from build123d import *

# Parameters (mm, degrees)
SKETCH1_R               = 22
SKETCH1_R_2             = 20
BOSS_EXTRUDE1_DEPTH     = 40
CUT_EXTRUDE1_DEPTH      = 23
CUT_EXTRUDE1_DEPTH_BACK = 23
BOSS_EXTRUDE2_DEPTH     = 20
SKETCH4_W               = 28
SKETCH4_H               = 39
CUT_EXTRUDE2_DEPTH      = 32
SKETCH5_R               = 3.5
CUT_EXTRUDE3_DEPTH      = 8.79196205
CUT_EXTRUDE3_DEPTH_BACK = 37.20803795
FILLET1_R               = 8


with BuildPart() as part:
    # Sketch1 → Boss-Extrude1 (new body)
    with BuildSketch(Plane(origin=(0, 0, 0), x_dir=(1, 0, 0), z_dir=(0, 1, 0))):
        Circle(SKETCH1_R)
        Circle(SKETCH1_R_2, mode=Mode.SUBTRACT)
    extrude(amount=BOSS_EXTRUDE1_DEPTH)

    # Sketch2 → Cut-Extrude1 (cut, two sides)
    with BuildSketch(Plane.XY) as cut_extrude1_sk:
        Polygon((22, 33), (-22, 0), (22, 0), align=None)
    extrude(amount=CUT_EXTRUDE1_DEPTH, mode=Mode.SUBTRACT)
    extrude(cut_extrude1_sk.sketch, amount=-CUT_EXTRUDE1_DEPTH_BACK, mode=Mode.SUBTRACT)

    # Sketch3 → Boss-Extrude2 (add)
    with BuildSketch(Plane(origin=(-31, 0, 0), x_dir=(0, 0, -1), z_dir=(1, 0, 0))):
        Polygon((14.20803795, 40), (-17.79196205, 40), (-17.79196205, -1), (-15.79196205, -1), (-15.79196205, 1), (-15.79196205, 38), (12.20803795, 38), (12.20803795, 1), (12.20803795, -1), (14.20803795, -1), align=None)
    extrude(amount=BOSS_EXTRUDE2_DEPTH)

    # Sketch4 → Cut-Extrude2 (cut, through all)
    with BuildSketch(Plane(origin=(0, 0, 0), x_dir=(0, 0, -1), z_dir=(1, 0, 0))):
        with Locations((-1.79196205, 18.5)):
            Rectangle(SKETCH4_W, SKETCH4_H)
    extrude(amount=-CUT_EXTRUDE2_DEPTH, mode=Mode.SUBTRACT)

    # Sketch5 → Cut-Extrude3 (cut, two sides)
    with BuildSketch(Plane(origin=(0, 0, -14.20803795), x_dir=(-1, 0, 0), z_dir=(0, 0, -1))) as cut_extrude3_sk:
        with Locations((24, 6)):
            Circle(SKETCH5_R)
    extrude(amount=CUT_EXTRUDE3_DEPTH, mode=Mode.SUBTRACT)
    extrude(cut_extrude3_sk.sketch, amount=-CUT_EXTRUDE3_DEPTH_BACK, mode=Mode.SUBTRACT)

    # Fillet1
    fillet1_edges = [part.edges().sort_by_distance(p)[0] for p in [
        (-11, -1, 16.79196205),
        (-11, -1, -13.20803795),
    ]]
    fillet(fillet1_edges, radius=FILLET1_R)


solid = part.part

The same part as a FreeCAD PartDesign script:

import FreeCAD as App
import Part
import Sketcher
from FreeCAD import Vector


def edges_at(feature, points):
    """Names of the edges that pass closest to the given points."""
    edges = feature.Shape.Edges
    near = lambda p: min(range(len(edges)), key=lambda i: edges[i].distToShape(Part.Vertex(*p))[0])
    return sorted({f"Edge{near(p) + 1}" for p in points})


def add_polygon(sketch, points):
    """Adds a closed chain of lines whose ends are joined by coincident constraints."""
    first, n = sketch.GeometryCount, len(points)
    for a, b in zip(points, points[1:] + points[:1]):
        sketch.addGeometry(Part.LineSegment(App.Vector(*a, 0), App.Vector(*b, 0)), False)
    for i in range(n):
        sketch.addConstraint(Sketcher.Constraint("Coincident", first + i, 2, first + (i + 1) % n, 1))

doc = App.newDocument("Part")
body = doc.addObject("PartDesign::Body", "Body")

# Sketch on XZ plane
sketch1 = body.newObject("Sketcher::SketchObject", "Sketch")
sketch1.AttachmentSupport = (doc.getObject("XZ_Plane"), [""])
sketch1.MapMode = "FlatFace"
sketch1.addGeometry([
    Part.Circle(Vector(0, 0, 0), Vector(0, 0, 1), 22),
    Part.Circle(Vector(0, 0, 0), Vector(0, 0, 1), 20),
], False)
sketch1.addConstraint([
    Sketcher.Constraint("Coincident", 0, 3, -1, 1),
    Sketcher.Constraint("Coincident", 1, 3, -1, 1),
    Sketcher.Constraint("Diameter", 0, 44.0),
    Sketcher.Constraint("Diameter", 1, 40.0),
])
pad1 = body.newObject("PartDesign::Pad", "Pad")
pad1.Profile = sketch1
pad1.Length = 40
pad1.Reversed = True

# Sketch on XY plane
sketch2 = body.newObject("Sketcher::SketchObject", "Sketch001")
sketch2.AttachmentSupport = (doc.getObject("XY_Plane"), [""])
sketch2.MapMode = "FlatFace"
add_polygon(sketch2, [(22, 33), (-22, 0), (22, 0)])  # lines 0-2
sketch2.addConstraint([
    Sketcher.Constraint("Horizontal", 1),
    Sketcher.Constraint("Vertical", 2),
    Sketcher.Constraint("Symmetric", 0, 2, 1, 2, -1, 1),
    Sketcher.Constraint("DistanceX", 1, 1, 1, 2, 44.0),
    Sketcher.Constraint("DistanceY", 2, 1, 2, 2, 33.0),
])
pocket1 = body.newObject("PartDesign::Pocket", "Pocket")
pocket1.Profile = sketch2
pocket1.Type = "ThroughAll"
pocket1.Midplane = True

# Sketch on YZ plane
sketch3 = body.newObject("Sketcher::SketchObject", "Sketch002")
sketch3.AttachmentSupport = (doc.getObject("YZ_Plane"), [""])
sketch3.MapMode = "FlatFace"
sketch3.AttachmentOffset = App.Placement(Vector(0, 0, -31), App.Rotation())
add_polygon(sketch3, [(40, -14.208038), (40, 17.791962), (-1, 17.791962), (-1, 15.791962), (38, 15.791962), (38, -12.208038), (-1, -12.208038), (-1, -14.208038)])  # lines 0-7
sketch3.addConstraint([
    Sketcher.Constraint("Vertical", 0),
    Sketcher.Constraint("Horizontal", 1),
    Sketcher.Constraint("Vertical", 2),
    Sketcher.Constraint("Horizontal", 3),
    Sketcher.Constraint("Vertical", 4),
    Sketcher.Constraint("Horizontal", 5),
    Sketcher.Constraint("Vertical", 6),
    Sketcher.Constraint("Horizontal", 7),
    Sketcher.Constraint("Vertical", 2, 2, 5, 2),
    Sketcher.Constraint("Equal", 2, 6),
    Sketcher.Constraint("DistanceX", 1, 2, 1, 1, 41.0),
    Sketcher.Constraint("DistanceX", 3, 1, 3, 2, 39.0),
    Sketcher.Constraint("DistanceY", 0, 1, 0, 2, 32.0),
    Sketcher.Constraint("DistanceY", 2, 2, 2, 1, 2.0),
    Sketcher.Constraint("DistanceX", -1, 1, 0, 2, 40.0),
    Sketcher.Constraint("DistanceY", -1, 1, 0, 2, 17.791962),
])
pad2 = body.newObject("PartDesign::Pad", "Pad001")
pad2.Profile = sketch3
pad2.Length = 20

# Sketch on YZ plane
sketch4 = body.newObject("Sketcher::SketchObject", "Sketch003")
sketch4.AttachmentSupport = (doc.getObject("YZ_Plane"), [""])
sketch4.MapMode = "FlatFace"
add_polygon(sketch4, [(38, 15.791962), (-1, 15.791962), (-1, -12.208038), (38, -12.208038)])  # lines 0-3
sketch4.addConstraint([
    Sketcher.Constraint("Horizontal", 0),
    Sketcher.Constraint("Vertical", 1),
    Sketcher.Constraint("Horizontal", 2),
    Sketcher.Constraint("Vertical", 3),
    Sketcher.Constraint("DistanceX", 0, 2, 0, 1, 39.0),
    Sketcher.Constraint("DistanceY", 1, 2, 1, 1, 28.0),
    Sketcher.Constraint("DistanceX", 0, 2, -1, 1, 1.0),
    Sketcher.Constraint("DistanceY", -1, 1, 0, 2, 15.791962),
])
pocket2 = body.newObject("PartDesign::Pocket", "Pocket001")
pocket2.Profile = sketch4
pocket2.Type = "ThroughAll"

# Sketch on XY plane
sketch5 = body.newObject("Sketcher::SketchObject", "Sketch004")
sketch5.AttachmentSupport = (doc.getObject("XY_Plane"), [""])
sketch5.MapMode = "FlatFace"
sketch5.AttachmentOffset = App.Placement(Vector(0, 0, -14.208038), App.Rotation())
sketch5.addGeometry(Part.Circle(Vector(-24, 6, 0), Vector(0, 0, 1), 3.5), False)
sketch5.addConstraint([
    Sketcher.Constraint("Diameter", 0, 7.0),
    Sketcher.Constraint("DistanceX", 0, 3, -1, 1, 24.0),
    Sketcher.Constraint("DistanceY", -1, 1, 0, 3, 6.0),
])
pocket3 = body.newObject("PartDesign::Pocket", "Pocket002")
pocket3.Profile = sketch5
pocket3.Type = "ThroughAll"
pocket3.Midplane = True
doc.recompute()

fillet = body.newObject("PartDesign::Fillet", "Fillet")
fillet.Base = (pocket3, edges_at(pocket3, [(-11, -1, 16.792), (-11, -1, -13.208)]))
fillet.Radius = 8

doc.recompute()
